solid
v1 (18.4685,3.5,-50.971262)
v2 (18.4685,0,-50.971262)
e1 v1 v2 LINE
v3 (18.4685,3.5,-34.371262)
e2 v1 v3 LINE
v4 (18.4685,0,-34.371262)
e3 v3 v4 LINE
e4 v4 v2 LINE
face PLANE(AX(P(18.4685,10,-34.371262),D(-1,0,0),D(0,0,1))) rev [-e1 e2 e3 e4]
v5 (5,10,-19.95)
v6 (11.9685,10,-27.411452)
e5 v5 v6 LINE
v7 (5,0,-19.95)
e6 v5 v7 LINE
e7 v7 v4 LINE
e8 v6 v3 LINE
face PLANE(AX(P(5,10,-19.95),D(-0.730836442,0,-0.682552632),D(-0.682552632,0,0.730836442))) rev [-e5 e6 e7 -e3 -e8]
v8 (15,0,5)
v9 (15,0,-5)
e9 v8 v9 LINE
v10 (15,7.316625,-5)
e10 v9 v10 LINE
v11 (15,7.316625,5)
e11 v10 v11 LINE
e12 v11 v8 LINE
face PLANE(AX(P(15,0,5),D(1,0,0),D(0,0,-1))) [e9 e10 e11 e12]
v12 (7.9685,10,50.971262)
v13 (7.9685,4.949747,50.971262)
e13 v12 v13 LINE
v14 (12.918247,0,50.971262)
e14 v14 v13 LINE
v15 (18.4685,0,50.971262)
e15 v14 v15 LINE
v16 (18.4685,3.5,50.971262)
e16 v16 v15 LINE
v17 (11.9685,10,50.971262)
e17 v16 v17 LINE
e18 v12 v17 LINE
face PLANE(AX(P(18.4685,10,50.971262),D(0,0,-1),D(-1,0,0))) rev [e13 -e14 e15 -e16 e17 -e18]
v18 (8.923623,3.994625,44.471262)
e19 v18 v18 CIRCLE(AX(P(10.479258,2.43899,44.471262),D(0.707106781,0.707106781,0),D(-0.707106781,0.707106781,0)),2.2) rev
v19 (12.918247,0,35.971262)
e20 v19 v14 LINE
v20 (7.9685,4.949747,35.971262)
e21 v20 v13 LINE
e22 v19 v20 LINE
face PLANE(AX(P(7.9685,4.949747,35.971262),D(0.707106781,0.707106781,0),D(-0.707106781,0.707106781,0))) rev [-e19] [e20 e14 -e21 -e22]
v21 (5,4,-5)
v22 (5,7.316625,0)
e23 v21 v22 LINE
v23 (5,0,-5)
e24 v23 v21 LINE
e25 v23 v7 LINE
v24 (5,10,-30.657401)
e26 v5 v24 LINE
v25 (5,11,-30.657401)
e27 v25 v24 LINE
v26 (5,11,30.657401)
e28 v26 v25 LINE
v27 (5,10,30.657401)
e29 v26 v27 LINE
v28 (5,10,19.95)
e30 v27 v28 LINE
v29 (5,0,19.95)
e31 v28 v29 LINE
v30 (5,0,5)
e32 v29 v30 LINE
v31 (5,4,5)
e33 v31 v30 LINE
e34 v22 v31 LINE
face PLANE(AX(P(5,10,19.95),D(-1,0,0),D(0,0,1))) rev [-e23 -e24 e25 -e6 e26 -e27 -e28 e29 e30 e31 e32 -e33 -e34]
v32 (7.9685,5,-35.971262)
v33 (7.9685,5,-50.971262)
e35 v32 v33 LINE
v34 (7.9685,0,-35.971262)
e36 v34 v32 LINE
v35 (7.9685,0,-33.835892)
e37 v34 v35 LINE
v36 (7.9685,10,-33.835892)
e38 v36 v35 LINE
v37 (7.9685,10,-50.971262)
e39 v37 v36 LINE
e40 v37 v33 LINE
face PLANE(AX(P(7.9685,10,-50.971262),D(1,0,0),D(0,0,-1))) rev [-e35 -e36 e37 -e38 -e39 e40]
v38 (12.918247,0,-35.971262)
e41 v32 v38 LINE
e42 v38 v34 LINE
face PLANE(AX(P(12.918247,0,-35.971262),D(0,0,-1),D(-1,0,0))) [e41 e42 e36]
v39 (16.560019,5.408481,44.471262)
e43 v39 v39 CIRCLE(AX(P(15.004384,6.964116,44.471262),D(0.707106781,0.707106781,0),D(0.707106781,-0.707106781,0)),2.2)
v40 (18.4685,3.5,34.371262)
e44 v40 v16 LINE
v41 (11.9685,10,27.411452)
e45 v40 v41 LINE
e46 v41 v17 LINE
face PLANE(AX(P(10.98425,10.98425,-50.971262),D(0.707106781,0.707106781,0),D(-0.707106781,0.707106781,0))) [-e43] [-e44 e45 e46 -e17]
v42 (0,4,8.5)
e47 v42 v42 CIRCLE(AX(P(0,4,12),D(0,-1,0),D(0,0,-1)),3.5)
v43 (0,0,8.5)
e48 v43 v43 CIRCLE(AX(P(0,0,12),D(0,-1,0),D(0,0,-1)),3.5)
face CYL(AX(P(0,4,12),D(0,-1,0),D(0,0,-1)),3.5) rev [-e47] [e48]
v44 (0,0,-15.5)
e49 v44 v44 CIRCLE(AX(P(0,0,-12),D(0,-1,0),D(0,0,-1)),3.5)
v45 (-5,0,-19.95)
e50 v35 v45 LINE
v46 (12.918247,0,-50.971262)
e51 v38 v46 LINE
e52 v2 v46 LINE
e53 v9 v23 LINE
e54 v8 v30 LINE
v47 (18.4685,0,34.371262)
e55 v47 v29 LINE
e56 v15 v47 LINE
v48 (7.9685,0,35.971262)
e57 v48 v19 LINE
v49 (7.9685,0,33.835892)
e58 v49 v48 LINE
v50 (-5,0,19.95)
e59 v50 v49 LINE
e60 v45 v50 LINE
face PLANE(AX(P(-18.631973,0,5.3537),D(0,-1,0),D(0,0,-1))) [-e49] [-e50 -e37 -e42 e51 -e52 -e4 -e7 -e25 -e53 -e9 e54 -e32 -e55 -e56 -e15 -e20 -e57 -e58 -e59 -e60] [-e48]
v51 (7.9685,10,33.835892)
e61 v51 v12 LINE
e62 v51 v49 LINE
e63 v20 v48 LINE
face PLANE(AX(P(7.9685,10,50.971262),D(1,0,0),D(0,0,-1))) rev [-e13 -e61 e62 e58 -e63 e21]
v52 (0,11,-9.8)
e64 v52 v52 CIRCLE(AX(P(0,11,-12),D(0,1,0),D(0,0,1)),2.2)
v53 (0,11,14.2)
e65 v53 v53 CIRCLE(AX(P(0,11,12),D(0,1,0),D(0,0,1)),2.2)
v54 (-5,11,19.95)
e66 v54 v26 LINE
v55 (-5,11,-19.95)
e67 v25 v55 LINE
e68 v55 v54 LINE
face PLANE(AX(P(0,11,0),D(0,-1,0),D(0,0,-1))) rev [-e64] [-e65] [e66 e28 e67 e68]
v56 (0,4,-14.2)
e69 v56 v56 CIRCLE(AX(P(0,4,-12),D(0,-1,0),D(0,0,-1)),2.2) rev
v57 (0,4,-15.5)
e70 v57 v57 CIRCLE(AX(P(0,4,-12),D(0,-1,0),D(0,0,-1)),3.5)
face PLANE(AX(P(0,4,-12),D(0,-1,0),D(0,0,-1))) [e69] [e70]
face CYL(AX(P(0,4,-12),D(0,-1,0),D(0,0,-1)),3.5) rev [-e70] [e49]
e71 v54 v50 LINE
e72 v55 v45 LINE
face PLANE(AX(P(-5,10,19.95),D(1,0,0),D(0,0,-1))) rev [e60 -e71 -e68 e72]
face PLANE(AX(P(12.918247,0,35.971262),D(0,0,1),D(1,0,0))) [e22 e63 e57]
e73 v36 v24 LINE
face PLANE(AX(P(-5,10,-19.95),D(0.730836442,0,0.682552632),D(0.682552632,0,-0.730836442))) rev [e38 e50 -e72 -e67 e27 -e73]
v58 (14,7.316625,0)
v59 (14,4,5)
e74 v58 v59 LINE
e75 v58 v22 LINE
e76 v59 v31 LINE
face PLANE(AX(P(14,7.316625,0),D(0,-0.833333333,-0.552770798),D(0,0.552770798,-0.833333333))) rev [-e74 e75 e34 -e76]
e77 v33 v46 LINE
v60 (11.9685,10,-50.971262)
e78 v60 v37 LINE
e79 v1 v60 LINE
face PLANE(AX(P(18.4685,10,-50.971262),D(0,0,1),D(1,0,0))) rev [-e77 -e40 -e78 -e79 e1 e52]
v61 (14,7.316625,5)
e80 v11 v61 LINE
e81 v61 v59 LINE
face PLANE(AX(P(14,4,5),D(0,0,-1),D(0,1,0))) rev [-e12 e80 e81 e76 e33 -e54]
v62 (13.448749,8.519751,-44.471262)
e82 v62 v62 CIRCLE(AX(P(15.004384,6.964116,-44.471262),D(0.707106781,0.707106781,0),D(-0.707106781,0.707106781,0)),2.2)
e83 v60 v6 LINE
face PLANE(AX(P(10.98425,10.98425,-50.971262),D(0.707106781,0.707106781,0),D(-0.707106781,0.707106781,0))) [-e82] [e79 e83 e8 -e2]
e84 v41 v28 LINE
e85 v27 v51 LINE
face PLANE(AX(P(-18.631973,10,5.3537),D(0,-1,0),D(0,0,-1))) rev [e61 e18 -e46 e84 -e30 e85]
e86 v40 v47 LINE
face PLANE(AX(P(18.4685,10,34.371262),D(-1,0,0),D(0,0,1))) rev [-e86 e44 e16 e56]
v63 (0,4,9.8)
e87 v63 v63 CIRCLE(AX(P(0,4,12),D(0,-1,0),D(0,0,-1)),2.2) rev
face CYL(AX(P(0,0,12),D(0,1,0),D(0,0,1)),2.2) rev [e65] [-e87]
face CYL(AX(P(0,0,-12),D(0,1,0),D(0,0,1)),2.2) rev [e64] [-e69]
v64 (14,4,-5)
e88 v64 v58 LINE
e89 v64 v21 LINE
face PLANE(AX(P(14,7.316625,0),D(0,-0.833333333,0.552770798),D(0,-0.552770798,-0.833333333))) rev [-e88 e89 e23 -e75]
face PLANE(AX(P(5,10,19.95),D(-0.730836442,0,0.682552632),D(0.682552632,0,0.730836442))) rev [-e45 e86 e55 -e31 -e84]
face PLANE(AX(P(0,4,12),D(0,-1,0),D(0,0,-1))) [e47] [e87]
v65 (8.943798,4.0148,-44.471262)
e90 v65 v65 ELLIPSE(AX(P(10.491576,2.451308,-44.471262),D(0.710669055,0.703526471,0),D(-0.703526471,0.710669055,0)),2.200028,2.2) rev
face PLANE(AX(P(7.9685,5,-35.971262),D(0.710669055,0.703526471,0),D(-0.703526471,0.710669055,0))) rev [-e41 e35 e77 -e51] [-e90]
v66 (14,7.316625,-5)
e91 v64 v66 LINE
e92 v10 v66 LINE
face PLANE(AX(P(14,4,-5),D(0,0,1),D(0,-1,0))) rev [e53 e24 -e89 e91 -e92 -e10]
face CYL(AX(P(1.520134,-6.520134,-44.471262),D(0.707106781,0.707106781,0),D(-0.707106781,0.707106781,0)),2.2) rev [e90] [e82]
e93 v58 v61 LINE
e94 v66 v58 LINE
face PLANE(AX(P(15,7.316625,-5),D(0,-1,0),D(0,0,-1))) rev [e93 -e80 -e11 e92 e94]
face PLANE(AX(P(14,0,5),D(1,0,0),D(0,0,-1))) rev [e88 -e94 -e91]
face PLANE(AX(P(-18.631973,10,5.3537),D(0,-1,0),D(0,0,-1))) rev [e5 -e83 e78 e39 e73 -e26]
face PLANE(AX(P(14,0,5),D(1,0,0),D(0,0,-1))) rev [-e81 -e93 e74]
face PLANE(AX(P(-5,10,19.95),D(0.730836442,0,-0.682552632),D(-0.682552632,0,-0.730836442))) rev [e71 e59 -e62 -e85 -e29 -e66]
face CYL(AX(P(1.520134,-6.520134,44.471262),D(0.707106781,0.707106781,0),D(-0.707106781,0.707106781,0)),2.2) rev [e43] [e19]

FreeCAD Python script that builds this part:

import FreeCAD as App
import Part
import Sketcher
Q = App.Units.Quantity


def add_polygon(sketch, points):
    """Adds a closed chain of lines whose ends are joined by coincident constraints."""
    first, n = sketch.GeometryCount, len(points)
    for a, b in zip(points, points[1:] + points[:1]):
        sketch.addGeometry(Part.LineSegment(App.Vector(*a, 0), App.Vector(*b, 0)), False)
    for i in range(n):
        sketch.addConstraint(Sketcher.Constraint("Coincident", first + i, 2, first + (i + 1) % n, 1))

doc = App.newDocument("Part")
params = doc.addObject("Spreadsheet::Sheet", "Params")
for row, (alias, value) in enumerate([
    ("sketch1_length", "19 mm"),
    ("sketch1_width", "10.5 mm"),
    ("sketch1_height", "39.9 mm"),
    ("sketch1_height2", "16.6 mm"),
    ("pad1_length", "10 mm"),
    ("sketch2_width", "6.5 mm"),
    ("sketch3_diameter", "4.4 mm"),
    ("sketch4_length", "7 mm"),
    ("pocket3_length", "15 mm"),
    ("sketch5_height", "5 mm"),
    ("pocket4_length", "15 mm"),
    ("sketch6_width", "4 mm"),
    ("sketch6_height", "10 mm"),
    ("sketch6_length", "6 mm"),
    ("pad2_length", "9 mm"),
    ("sketch7_height", "10 mm"),
    ("pad3_length", "1 mm"),
    ("sketch8_diameter", "4.4 mm"),
    ("sketch9_diameter", "7 mm"),
    ("pocket6_length", "4 mm"),
    ("sketch10_diameter", "4.4 mm"),
    ("sketch10_height", "39.9 mm"),
    ("pad4_length", "1 mm"),
], start=1):
    params.set(f"A{row}", alias)
    params.set(f"B{row}", "=" + value)
    params.setAlias(f"B{row}", alias)

body = doc.addObject("PartDesign::Body", "Body")

sketch1 = body.newObject("Sketcher::SketchObject", "Sketch")
sketch1.AttachmentSupport = (doc.getObject("XZ_Plane"), [""])
sketch1.MapMode = "FlatFace"
add_polygon(sketch1, [(7.9685, -33.835892), (-5, -19.95), (-5, 19.95), (7.9685, 33.835892), (7.9685, 50.971262), (18.4685, 50.971262), (18.4685, 34.371262), (5, 19.95), (5, -19.95), (18.4685, -34.371262), (18.4685, -50.971262), (7.9685, -50.971262)])
sketch1.addConstraint([
    Sketcher.Constraint("Vertical", 1),
    Sketcher.Constraint("Vertical", 3),
    Sketcher.Constraint("Horizontal", 4),
    Sketcher.Constraint("Vertical", 5),
    Sketcher.Constraint("Vertical", 7),
    Sketcher.Constraint("Vertical", 9),
    Sketcher.Constraint("Horizontal", 10),
    Sketcher.Constraint("Vertical", 11),
    Sketcher.Constraint("Symmetric", 0, 2, 6, 2, -1, 1),
    Sketcher.Constraint("Symmetric", 5, 2, 8, 2, -1),
    Sketcher.Constraint("Symmetric", 3, 2, 10, 2, -1),
    Sketcher.Constraint("Parallel", 2, 6),
    Sketcher.Constraint("Parallel", 0, 8),
    Sketcher.Constraint("Horizontal", 1, 2, 6, 2),
    Sketcher.Constraint("Horizontal", 0, 2, 7, 2),
    Sketcher.Constraint("Distance", 0, Q("19 mm")),
    Sketcher.Constraint("DistanceX", 4, 1, 4, 2, Q("10.5 mm")),
    Sketcher.Constraint("DistanceY", 1, 1, 1, 2, Q("39.9 mm")),
    Sketcher.Constraint("DistanceY", 5, 2, 5, 1, Q("16.6 mm")),
    Sketcher.Constraint("DistanceX", 0, 2, -1, 1, Q("5 mm")),
    Sketcher.Constraint("DistanceY", 3, 1, 3, 2, Q("17.13537 mm")),
])
sketch1.setExpression("Constraints[27]", "Params.sketch1_length")
sketch1.setExpression("Constraints[28]", "Params.sketch1_width")
sketch1.setExpression("Constraints[29]", "Params.sketch1_height")
sketch1.setExpression("Constraints[30]", "Params.sketch1_height2")
pad1 = body.newObject("PartDesign::Pad", "Pad")
pad1.Profile = sketch1
pad1.setExpression("Length", "Params.pad1_length")
pad1.Reversed = True

sketch2 = body.newObject("Sketcher::SketchObject", "Sketch001")
sketch2.AttachmentSupport = (doc.getObject("XY_Plane"), [""])
sketch2.MapMode = "FlatFace"
sketch2.AttachmentOffset = App.Placement(App.Vector(0, 0, 50.971262), App.Rotation())
add_polygon(sketch2, [(12, 10), (18, 4), (18, 10)])
sketch2.addConstraint([
    Sketcher.Constraint("Vertical", 1),
    Sketcher.Constraint("Horizontal", 2),
    Sketcher.Constraint("Equal", 2, 1),
    Sketcher.Constraint("DistanceX", 2, 2, 2, 1, Q("6.5 mm")),
    Sketcher.Constraint("DistanceY", -1, 1, 1, 2, Q("10 mm")),
    Sketcher.Constraint("DistanceX", -1, 1, 0, 2, Q("18.4685 mm")),
])
sketch2.setExpression("Constraints[6]", "Params.sketch2_width")
pocket1 = body.newObject("PartDesign::Pocket", "Pocket")
pocket1.Profile = sketch2
pocket1.Type = "ThroughAll"

sketch3 = body.newObject("Sketcher::SketchObject", "Sketch002")
sketch3.Placement = App.Placement(App.Vector(10.98425, 10.98425, 0), App.Rotation(App.Vector(0, 0, -1), App.Vector(-0.707106781, 0.707106781, 0), App.Vector(0.707106781, 0.707106781, 0), "ZXY"))
sketch3.addGeometry([
    Part.Circle(App.Vector(44.5, -5.7, 0), App.Vector(0, 0, 1), 2.2),
    Part.Circle(App.Vector(-44.5, -5.7, 0), App.Vector(0, 0, 1), 2.2),
], False)
sketch3.addConstraint([
    Sketcher.Constraint("Equal", 0, 1),
    Sketcher.Constraint("Symmetric", 0, 3, 1, 3, -2),
    Sketcher.Constraint("Diameter", 0, Q("4.4 mm")),
    Sketcher.Constraint("DistanceX", -1, 1, 0, 3, Q("44.471262 mm")),
    Sketcher.Constraint("DistanceY", 0, 3, -1, 1, Q("5.685328 mm")),
])
sketch3.setExpression("Constraints[2]", "Params.sketch3_diameter")
pocket2 = body.newObject("PartDesign::Pocket", "Pocket001")
pocket2.Profile = sketch3
pocket2.Type = "ThroughAll"

sketch4 = body.newObject("Sketcher::SketchObject", "Sketch003")
sketch4.AttachmentSupport = (doc.getObject("XY_Plane"), [""])
sketch4.MapMode = "FlatFace"
sketch4.AttachmentOffset = App.Placement(App.Vector(0, 0, 50.971262), App.Rotation())
add_polygon(sketch4, [(8, 4.9), (8, 0), (12.9, 0)])
sketch4.addConstraint([
    Sketcher.Constraint("Vertical", 0),
    Sketcher.Constraint("Horizontal", 1),
    Sketcher.Constraint("PointOnObject", 0, 2, -1),
    Sketcher.Constraint("Equal", 1, 0),
    Sketcher.Constraint("Distance", 2, Q("7 mm")),
    Sketcher.Constraint("DistanceX", -1, 1, 0, 2, Q("7.9685 mm")),
])
sketch4.setExpression("Constraints[7]", "Params.sketch4_length")
pocket3 = body.newObject("PartDesign::Pocket", "Pocket002")
pocket3.Profile = sketch4
pocket3.setExpression("Length", "Params.pocket3_length")

sketch5 = body.newObject("Sketcher::SketchObject", "Sketch004")
sketch5.AttachmentSupport = (doc.getObject("XY_Plane"), [""])
sketch5.MapMode = "FlatFace"
sketch5.AttachmentOffset = App.Placement(App.Vector(0, 0, -50.971262), App.Rotation())
add_polygon(sketch5, [(8, 0), (8, 5), (12.9, 0)])
sketch5.addConstraint([
    Sketcher.Constraint("Vertical", 0),
    Sketcher.Constraint("Horizontal", 2),
    Sketcher.Constraint("PointOnObject", 1, 2, -1),
    Sketcher.Constraint("DistanceY", 0, 1, 0, 2, Q("5 mm")),
    Sketcher.Constraint("DistanceX", -1, 1, 0, 2, Q("7.9685 mm")),
    Sketcher.Constraint("DistanceX", 2, 2, 2, 1, Q("4.949747 mm")),
])
sketch5.setExpression("Constraints[6]", "Params.sketch5_height")
pocket4 = body.newObject("PartDesign::Pocket", "Pocket003")
pocket4.Profile = sketch5
pocket4.setExpression("Length", "Params.pocket4_length")
pocket4.Reversed = True

sketch6 = body.newObject("Sketcher::SketchObject", "Sketch005")
sketch6.AttachmentSupport = (doc.getObject("YZ_Plane"), [""])
sketch6.MapMode = "FlatFace"
sketch6.AttachmentOffset = App.Placement(App.Vector(0, 0, 5), App.Rotation())
add_polygon(sketch6, [(7.3, 0), (4, 5), (0, 5), (0, -5), (4, -5)])
sketch6.addConstraint([
    Sketcher.Constraint("Horizontal", 1),
    Sketcher.Constraint("Vertical", 2),
    Sketcher.Constraint("Horizontal", 3),
    Sketcher.Constraint("Symmetric", 1, 2, 2, 2, -1, 1),
    Sketcher.Constraint("PointOnObject", 4, 2, -1),
    Sketcher.Constraint("Vertical", 0, 2, 3, 2),
    Sketcher.Constraint("DistanceX", 1, 2, 1, 1, Q("4 mm")),
    Sketcher.Constraint("DistanceY", 2, 2, 2, 1, Q("10 mm")),
    Sketcher.Constraint("Distance", 0, Q("6 mm")),
])
sketch6.setExpression("Constraints[11]", "Params.sketch6_width")
sketch6.setExpression("Constraints[12]", "Params.sketch6_height")
sketch6.setExpression("Constraints[13]", "Params.sketch6_length")
pad2 = body.newObject("PartDesign::Pad", "Pad001")
pad2.Profile = sketch6
pad2.setExpression("Length", "Params.pad2_length")

sketch7 = body.newObject("Sketcher::SketchObject", "Sketch006")
sketch7.AttachmentSupport = (doc.getObject("YZ_Plane"), [""])
sketch7.MapMode = "FlatFace"
sketch7.AttachmentOffset = App.Placement(App.Vector(0, 0, 14), App.Rotation())
add_polygon(sketch7, [(7, 5), (0, 5), (0, -5), (7, -5)])
sketch7.addConstraint([
    Sketcher.Constraint("Horizontal", 0),
    Sketcher.Constraint("Vertical", 1),
    Sketcher.Constraint("Horizontal", 2),
    Sketcher.Constraint("Vertical", 3),
    Sketcher.Constraint("Symmetric", 0, 2, 1, 2, -1, 1),
    Sketcher.Constraint("DistanceY", 1, 2, 1, 1, Q("10 mm")),
    Sketcher.Constraint("DistanceX", 0, 2, 0, 1, Q("7.316625 mm")),
])
sketch7.setExpression("Constraints[9]", "Params.sketch7_height")
pad3 = body.newObject("PartDesign::Pad", "Pad002")
pad3.Profile = sketch7
pad3.setExpression("Length", "Params.pad3_length")

sketch8 = body.newObject("Sketcher::SketchObject", "Sketch007")
sketch8.AttachmentSupport = (doc.getObject("XZ_Plane"), [""])
sketch8.MapMode = "FlatFace"
sketch8.AttachmentOffset = App.Placement(App.Vector(0, 0, -10), App.Rotation())
sketch8.addGeometry([
    Part.Circle(App.Vector(0, -12, 0), App.Vector(0, 0, 1), 2.2),
    Part.Circle(App.Vector(0, 12, 0), App.Vector(0, 0, 1), 2.2),
], False)
sketch8.addConstraint([
    Sketcher.Constraint("Equal", 0, 1),
    Sketcher.Constraint("Symmetric", 0, 3, 1, 3, -1, 1),
    Sketcher.Constraint("PointOnObject", 0, 3, -2),
    Sketcher.Constraint("Diameter", 0, Q("4.4 mm")),
    Sketcher.Constraint("DistanceY", 0, 3, -1, 1, Q("12 mm")),
])
sketch8.setExpression("Constraints[3]", "Params.sketch8_diameter")
pocket5 = body.newObject("PartDesign::Pocket", "Pocket004")
pocket5.Profile = sketch8
pocket5.Type = "ThroughAll"
pocket5.Reversed = True

sketch9 = body.newObject("Sketcher::SketchObject", "Sketch008")
sketch9.AttachmentSupport = (doc.getObject("XZ_Plane"), [""])
sketch9.MapMode = "FlatFace"
sketch9.addGeometry([
    Part.Circle(App.Vector(0, 12, 0), App.Vector(0, 0, 1), 3.5),
    Part.Circle(App.Vector(0, -12, 0), App.Vector(0, 0, 1), 3.5),
], False)
sketch9.addConstraint([
    Sketcher.Constraint("Equal", 0, 1),
    Sketcher.Constraint("Symmetric", 0, 3, 1, 3, -1, 1),
    Sketcher.Constraint("PointOnObject", 0, 3, -2),
    Sketcher.Constraint("Diameter", 0, Q("7 mm")),
    Sketcher.Constraint("DistanceY", -1, 1, 0, 3, Q("12 mm")),
])
sketch9.setExpression("Constraints[3]", "Params.sketch9_diameter")
pocket6 = body.newObject("PartDesign::Pocket", "Pocket005")
pocket6.Profile = sketch9
pocket6.setExpression("Length", "Params.pocket6_length")

sketch10 = body.newObject("Sketcher::SketchObject", "Sketch009")
sketch10.AttachmentSupport = (doc.getObject("XZ_Plane"), [""])
sketch10.MapMode = "FlatFace"
sketch10.AttachmentOffset = App.Placement(App.Vector(0, 0, -10), App.Rotation())
add_polygon(sketch10, [(5, 30.7), (5, -30.7), (-5, -19.9), (-5, 19.9)])
sketch10.addGeometry(Part.Circle(App.Vector(0, 12, 0), App.Vector(0, 0, 1), 2.2), False)
sketch10.addGeometry(Part.Circle(App.Vector(0, -12, 0), App.Vector(0, 0, 1), 2.2), False)
sketch10.addConstraint([
    Sketcher.Constraint("Vertical", 0),
    Sketcher.Constraint("Vertical", 2),
    Sketcher.Constraint("Equal", 4, 5),
    Sketcher.Constraint("Symmetric", 4, 3, 5, 3, -1, 1),
    Sketcher.Constraint("PointOnObject", 4, 3, -2),
    Sketcher.Constraint("Equal", 1, 3),
    Sketcher.Constraint("Diameter", 4, Q("4.4 mm")),
    Sketcher.Constraint("DistanceY", 2, 1, 2, 2, Q("39.9 mm")),
    Sketcher.Constraint("DistanceY", -1, 1, 4, 3, Q("12 mm")),
    Sketcher.Constraint("DistanceX", -1, 1, 0, 2, Q("5 mm")),
    Sketcher.Constraint("DistanceX", 1, 2, -1, 1, Q("5 mm")),
    Sketcher.Constraint("DistanceY", 1, 2, -1, 1, Q("19.95 mm")),
    Sketcher.Constraint("DistanceY", 0, 2, 0, 1, Q("61.314801 mm")),
])
sketch10.setExpression("Constraints[10]", "Params.sketch10_diameter")
sketch10.setExpression("Constraints[11]", "Params.sketch10_height")
pad4 = body.newObject("PartDesign::Pad", "Pad003")
pad4.Profile = sketch10
pad4.setExpression("Length", "Params.pad4_length")
pad4.Reversed = True

doc.recompute()
